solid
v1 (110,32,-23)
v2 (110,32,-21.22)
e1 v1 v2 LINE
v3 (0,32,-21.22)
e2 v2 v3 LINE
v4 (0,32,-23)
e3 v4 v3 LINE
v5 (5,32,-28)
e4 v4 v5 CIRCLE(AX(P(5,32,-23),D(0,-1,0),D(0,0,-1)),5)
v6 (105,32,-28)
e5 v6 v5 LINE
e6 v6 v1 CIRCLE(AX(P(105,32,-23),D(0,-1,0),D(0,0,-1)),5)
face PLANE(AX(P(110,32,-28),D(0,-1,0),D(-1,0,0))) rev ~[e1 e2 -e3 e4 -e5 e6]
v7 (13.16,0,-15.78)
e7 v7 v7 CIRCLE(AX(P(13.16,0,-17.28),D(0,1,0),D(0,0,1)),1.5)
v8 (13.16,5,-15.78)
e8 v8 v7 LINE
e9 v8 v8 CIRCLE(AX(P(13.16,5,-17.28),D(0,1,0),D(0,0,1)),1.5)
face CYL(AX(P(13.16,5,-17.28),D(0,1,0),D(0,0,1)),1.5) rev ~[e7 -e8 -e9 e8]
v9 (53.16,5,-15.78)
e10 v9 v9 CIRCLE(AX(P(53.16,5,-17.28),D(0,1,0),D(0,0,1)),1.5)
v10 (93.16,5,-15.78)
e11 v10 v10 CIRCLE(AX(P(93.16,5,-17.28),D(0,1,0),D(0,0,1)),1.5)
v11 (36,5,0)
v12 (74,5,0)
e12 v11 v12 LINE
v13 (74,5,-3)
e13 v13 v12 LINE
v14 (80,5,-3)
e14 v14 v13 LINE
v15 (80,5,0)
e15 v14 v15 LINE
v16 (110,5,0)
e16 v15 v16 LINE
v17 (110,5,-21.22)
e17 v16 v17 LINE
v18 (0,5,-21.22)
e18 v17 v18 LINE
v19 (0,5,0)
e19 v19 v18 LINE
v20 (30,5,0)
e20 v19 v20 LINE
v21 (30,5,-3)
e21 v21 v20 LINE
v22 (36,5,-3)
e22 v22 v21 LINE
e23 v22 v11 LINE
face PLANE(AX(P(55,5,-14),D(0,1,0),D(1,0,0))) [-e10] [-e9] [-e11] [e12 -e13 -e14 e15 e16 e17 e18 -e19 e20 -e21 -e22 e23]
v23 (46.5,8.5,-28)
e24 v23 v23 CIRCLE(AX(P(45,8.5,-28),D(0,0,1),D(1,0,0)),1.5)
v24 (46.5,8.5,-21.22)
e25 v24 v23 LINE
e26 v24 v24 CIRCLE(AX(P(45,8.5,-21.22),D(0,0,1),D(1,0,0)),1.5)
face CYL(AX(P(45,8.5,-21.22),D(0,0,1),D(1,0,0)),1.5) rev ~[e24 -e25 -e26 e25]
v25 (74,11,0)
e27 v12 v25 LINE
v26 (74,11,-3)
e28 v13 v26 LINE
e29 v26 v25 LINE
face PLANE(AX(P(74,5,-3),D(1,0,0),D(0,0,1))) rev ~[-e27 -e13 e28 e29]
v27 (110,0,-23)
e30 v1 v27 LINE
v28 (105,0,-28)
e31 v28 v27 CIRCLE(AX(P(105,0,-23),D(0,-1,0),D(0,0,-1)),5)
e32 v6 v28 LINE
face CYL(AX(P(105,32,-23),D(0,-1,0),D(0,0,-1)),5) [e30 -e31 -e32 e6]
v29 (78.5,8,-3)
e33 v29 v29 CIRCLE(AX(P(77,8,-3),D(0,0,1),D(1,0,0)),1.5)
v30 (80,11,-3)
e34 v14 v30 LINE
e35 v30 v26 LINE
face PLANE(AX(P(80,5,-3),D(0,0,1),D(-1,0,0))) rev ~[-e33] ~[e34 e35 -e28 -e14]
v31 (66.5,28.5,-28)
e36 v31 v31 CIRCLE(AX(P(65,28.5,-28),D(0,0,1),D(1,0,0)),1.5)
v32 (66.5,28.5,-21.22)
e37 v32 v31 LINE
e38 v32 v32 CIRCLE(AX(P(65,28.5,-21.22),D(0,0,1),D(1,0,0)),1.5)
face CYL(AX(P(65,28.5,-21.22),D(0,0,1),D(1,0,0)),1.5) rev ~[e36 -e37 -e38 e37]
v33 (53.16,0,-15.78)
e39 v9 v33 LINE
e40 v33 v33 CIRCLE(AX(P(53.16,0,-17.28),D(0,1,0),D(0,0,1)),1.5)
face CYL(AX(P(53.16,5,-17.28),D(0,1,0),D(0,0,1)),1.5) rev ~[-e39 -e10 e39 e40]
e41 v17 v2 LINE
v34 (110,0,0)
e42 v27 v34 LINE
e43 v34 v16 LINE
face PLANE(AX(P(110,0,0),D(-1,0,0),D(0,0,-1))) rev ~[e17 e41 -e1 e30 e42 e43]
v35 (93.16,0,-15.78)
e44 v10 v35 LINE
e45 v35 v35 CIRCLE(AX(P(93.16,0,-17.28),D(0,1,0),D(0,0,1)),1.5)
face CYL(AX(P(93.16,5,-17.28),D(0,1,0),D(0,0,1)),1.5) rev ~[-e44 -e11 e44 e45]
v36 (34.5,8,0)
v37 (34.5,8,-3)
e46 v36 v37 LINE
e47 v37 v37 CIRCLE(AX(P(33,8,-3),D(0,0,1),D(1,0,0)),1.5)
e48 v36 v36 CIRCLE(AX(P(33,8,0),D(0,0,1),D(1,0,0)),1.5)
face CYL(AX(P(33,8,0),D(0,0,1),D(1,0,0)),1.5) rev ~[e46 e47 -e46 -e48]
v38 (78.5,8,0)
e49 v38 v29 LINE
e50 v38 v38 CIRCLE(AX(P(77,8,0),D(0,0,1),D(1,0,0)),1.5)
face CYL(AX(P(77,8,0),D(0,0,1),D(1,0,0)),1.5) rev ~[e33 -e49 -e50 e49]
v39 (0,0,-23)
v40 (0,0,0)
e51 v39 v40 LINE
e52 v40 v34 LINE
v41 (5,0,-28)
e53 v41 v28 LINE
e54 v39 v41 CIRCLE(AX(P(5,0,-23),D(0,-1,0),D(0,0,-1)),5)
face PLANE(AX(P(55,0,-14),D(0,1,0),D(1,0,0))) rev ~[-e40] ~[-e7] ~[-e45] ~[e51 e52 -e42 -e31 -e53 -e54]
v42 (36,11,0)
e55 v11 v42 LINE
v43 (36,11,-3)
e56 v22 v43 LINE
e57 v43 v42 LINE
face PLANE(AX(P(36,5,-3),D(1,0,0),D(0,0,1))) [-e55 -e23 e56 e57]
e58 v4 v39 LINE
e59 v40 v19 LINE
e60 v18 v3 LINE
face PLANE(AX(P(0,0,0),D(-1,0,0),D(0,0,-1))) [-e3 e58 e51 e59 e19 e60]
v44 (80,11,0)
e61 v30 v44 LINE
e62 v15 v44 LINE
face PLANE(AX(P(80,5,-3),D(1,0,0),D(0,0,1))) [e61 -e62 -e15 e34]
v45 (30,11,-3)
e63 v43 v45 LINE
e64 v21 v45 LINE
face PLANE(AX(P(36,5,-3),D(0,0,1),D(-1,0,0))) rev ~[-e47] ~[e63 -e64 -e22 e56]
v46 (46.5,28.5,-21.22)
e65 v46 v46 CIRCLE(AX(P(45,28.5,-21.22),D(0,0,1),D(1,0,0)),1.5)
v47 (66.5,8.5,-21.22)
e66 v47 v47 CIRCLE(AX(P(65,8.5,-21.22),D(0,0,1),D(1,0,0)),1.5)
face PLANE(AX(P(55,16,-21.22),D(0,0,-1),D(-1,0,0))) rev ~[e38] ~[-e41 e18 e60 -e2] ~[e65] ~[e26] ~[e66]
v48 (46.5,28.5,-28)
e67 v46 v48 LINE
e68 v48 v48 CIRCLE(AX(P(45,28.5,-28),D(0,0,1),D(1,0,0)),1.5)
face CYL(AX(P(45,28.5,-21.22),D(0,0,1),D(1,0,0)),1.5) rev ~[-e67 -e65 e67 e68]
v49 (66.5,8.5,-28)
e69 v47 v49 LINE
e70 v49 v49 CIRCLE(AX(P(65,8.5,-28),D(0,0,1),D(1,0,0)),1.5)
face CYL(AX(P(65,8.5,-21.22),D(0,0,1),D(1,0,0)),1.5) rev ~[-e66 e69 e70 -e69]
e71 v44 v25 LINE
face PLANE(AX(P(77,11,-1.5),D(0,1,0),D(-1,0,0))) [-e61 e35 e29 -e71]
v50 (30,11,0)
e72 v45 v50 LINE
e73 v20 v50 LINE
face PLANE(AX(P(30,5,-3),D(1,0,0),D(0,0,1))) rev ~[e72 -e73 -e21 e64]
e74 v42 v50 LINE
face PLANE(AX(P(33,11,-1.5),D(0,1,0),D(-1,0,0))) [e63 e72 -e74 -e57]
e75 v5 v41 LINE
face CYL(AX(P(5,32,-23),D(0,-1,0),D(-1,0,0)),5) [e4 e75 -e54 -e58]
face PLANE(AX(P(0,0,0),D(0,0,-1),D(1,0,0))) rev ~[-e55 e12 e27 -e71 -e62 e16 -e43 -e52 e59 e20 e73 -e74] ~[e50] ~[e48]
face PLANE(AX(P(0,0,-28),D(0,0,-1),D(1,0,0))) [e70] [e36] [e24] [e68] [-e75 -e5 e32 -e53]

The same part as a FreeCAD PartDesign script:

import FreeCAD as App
import Part
import Sketcher
from FreeCAD import Vector
Q = App.Units.Quantity


def edges_at(feature, points):
    """Names of the edges that pass closest to the given points."""
    edges = feature.Shape.Edges
    near = lambda p: min(range(len(edges)), key=lambda i: edges[i].distToShape(Part.Vertex(*p))[0])
    return sorted({f"Edge{near(p) + 1}" for p in points})


def add_polygon(sketch, points):
    """Adds a closed chain of lines whose ends are joined by coincident constraints."""
    first, n = sketch.GeometryCount, len(points)
    for a, b in zip(points, points[1:] + points[:1]):
        sketch.addGeometry(Part.LineSegment(App.Vector(*a, 0), App.Vector(*b, 0)), False)
    for i in range(n):
        sketch.addConstraint(Sketcher.Constraint("Coincident", first + i, 2, first + (i + 1) % n, 1))

doc = App.newDocument("Part")
body = doc.addObject("PartDesign::Body", "Body")

sketch1 = doc.addObject("Sketcher::SketchObject", "Sketch")
body.addObject(sketch1)
sketch1.AttachmentSupport = (doc.XZ_Plane, [""])
sketch1.MapMode = "FlatFace"
add_polygon(sketch1, [(0, -28), (0, 0), (110, 0), (110, -28)])
sketch1.addConstraint([
    Sketcher.Constraint("Vertical", 0),
    Sketcher.Constraint("Horizontal", 1),
    Sketcher.Constraint("Vertical", 2),
    Sketcher.Constraint("Horizontal", 3),
    Sketcher.Constraint("Coincident", 0, 2, -1, 1),
    Sketcher.Constraint("DistanceX", 1, 1, 1, 2, Q("110 mm")),
    Sketcher.Constraint("DistanceY", 0, 1, 0, 2, Q("28 mm")),
])
pad1 = doc.addObject("PartDesign::Pad", "Pad")
body.addObject(pad1)
pad1.Profile = sketch1
pad1.Length = 5
pad1.Reversed = True

sketch2 = doc.addObject("Sketcher::SketchObject", "Sketch001")
body.addObject(sketch2)
sketch2.AttachmentSupport = (doc.XY_Plane, [""])
sketch2.MapMode = "FlatFace"
sketch2.AttachmentOffset = App.Placement(Vector(0, 0, -28), App.Rotation())
add_polygon(sketch2, [(110, 32), (110, 0), (0, 0), (0, 32)])
sketch2.addConstraint([
    Sketcher.Constraint("Vertical", 0),
    Sketcher.Constraint("Horizontal", 1),
    Sketcher.Constraint("Vertical", 2),
    Sketcher.Constraint("Horizontal", 3),
    Sketcher.Constraint("Coincident", 1, 2, -1, 1),
    Sketcher.Constraint("DistanceX", 1, 2, 1, 1, Q("110 mm")),
    Sketcher.Constraint("DistanceY", 0, 2, 0, 1, Q("32 mm")),
])
pad2 = doc.addObject("PartDesign::Pad", "Pad001")
body.addObject(pad2)
pad2.Profile = sketch2
pad2.Length = 6.78

sketch3 = doc.addObject("Sketcher::SketchObject", "Sketch002")
body.addObject(sketch3)
sketch3.AttachmentSupport = (doc.XZ_Plane, [""])
sketch3.MapMode = "FlatFace"
sketch3.AttachmentOffset = App.Placement(Vector(0, 0, -5), App.Rotation())
sketch3.addGeometry([
    Part.Circle(Vector(13.2, -17.3, 0), Vector(0, 0, 1), 1.5),
    Part.Circle(Vector(53.2, -17.3, 0), Vector(0, 0, 1), 1.5),
    Part.Circle(Vector(93.2, -17.3, 0), Vector(0, 0, 1), 1.5),
], False)
sketch3.addConstraint([
    Sketcher.Constraint("Equal", 0, 1),
    Sketcher.Constraint("Equal", 1, 2),
    Sketcher.Constraint("Horizontal", 0, 3, 1, 3),
    Sketcher.Constraint("Horizontal", 1, 3, 2, 3),
    Sketcher.Constraint("Diameter", 0, Q("3 mm")),
    Sketcher.Constraint("DistanceX", 0, 3, 1, 3, Q("40 mm")),
    Sketcher.Constraint("DistanceX", 1, 3, 2, 3, Q("40 mm")),
    Sketcher.Constraint("DistanceX", -1, 1, 0, 3, Q("13.16 mm")),
    Sketcher.Constraint("DistanceY", 0, 3, -1, 1, Q("17.28 mm")),
])
pocket1 = doc.addObject("PartDesign::Pocket", "Pocket")
body.addObject(pocket1)
pocket1.Profile = sketch3
pocket1.Type = "ThroughAll"
pocket1.Reversed = True

sketch4 = doc.addObject("Sketcher::SketchObject", "Sketch003")
body.addObject(sketch4)
sketch4.AttachmentSupport = (doc.XY_Plane, [""])
sketch4.MapMode = "FlatFace"
sketch4.AttachmentOffset = App.Placement(Vector(0, 0, -21.22), App.Rotation())
sketch4.addGeometry([
    Part.Circle(Vector(45, 8.5, 0), Vector(0, 0, 1), 1.5),
    Part.Circle(Vector(65, 8.5, 0), Vector(0, 0, 1), 1.5),
    Part.Circle(Vector(45, 28.5, 0), Vector(0, 0, 1), 1.5),
    Part.Circle(Vector(65, 28.5, 0), Vector(0, 0, 1), 1.5),
], False)
sketch4.addConstraint([
    Sketcher.Constraint("Equal", 0, 1),
    Sketcher.Constraint("Equal", 1, 2),
    Sketcher.Constraint("Equal", 2, 3),
    Sketcher.Constraint("Horizontal", 0, 3, 1, 3),
    Sketcher.Constraint("Horizontal", 2, 3, 3, 3),
    Sketcher.Constraint("Vertical", 0, 3, 2, 3),
    Sketcher.Constraint("Vertical", 1, 3, 3, 3),
    Sketcher.Constraint("Diameter", 0, Q("3 mm")),
    Sketcher.Constraint("DistanceX", -1, 1, 0, 3, Q("45 mm")),
    Sketcher.Constraint("DistanceX", -1, 1, 1, 3, Q("65 mm")),
    Sketcher.Constraint("DistanceY", 0, 3, 2, 3, Q("20 mm")),
    Sketcher.Constraint("DistanceY", -1, 1, 0, 3, Q("8.5 mm")),
])
pocket2 = doc.addObject("PartDesign::Pocket", "Pocket001")
body.addObject(pocket2)
pocket2.Profile = sketch4
pocket2.Type = "ThroughAll"
doc.recompute()

fillet = doc.addObject("PartDesign::Fillet", "Fillet")
body.addObject(fillet)
fillet.Base = (pocket2, edges_at(pocket2, [(0, 16, -28), (110, 16, -28)]))
fillet.Radius = 5

sketch5 = doc.addObject("Sketcher::SketchObject", "Sketch004")
body.addObject(sketch5)
sketch5.AttachmentSupport = (doc.XZ_Plane, [""])
sketch5.MapMode = "FlatFace"
sketch5.AttachmentOffset = App.Placement(Vector(0, 0, -5), App.Rotation())
add_polygon(sketch5, [(36, 0), (36, -3), (30, -3), (30, 0)])
add_polygon(sketch5, [(80, 0), (80, -3), (74, -3), (74, 0)])
sketch5.addConstraint([
    Sketcher.Constraint("Vertical", 0),
    Sketcher.Constraint("Horizontal", 1),
    Sketcher.Constraint("Vertical", 2),
    Sketcher.Constraint("Horizontal", 3),
    Sketcher.Constraint("Vertical", 4),
    Sketcher.Constraint("Horizontal", 5),
    Sketcher.Constraint("Vertical", 6),
    Sketcher.Constraint("Horizontal", 7),
    Sketcher.Constraint("PointOnObject", 2, 2, -1),
    Sketcher.Constraint("PointOnObject", 6, 2, -1),
    Sketcher.Constraint("Horizontal", 1, 2, 4, 2),
    Sketcher.Constraint("Equal", 3, 5),
    Sketcher.Constraint("DistanceX", 1, 2, 1, 1, Q("6 mm")),
    Sketcher.Constraint("DistanceY", 0, 2, 0, 1, Q("3 mm")),
    Sketcher.Constraint("DistanceX", -1, 1, 0, 2, Q("36 mm")),
    Sketcher.Constraint("DistanceX", -1, 1, 4, 2, Q("80 mm")),
])
pad3 = doc.addObject("PartDesign::Pad", "Pad002")
body.addObject(pad3)
pad3.Profile = sketch5
pad3.Length = 6
pad3.Reversed = True

sketch6 = doc.addObject("Sketcher::SketchObject", "Sketch005")
body.addObject(sketch6)
sketch6.AttachmentSupport = (doc.XY_Plane, [""])
sketch6.MapMode = "FlatFace"
sketch6.addGeometry([
    Part.Circle(Vector(33, 8, 0), Vector(0, 0, 1), 1.5),
    Part.Circle(Vector(77, 8, 0), Vector(0, 0, 1), 1.5),
], False)
sketch6.addConstraint([
    Sketcher.Constraint("Equal", 0, 1),
    Sketcher.Constraint("Horizontal", 0, 3, 1, 3),
    Sketcher.Constraint("Diameter", 0, Q("3 mm")),
    Sketcher.Constraint("DistanceX", -1, 1, 0, 3, Q("33 mm")),
    Sketcher.Constraint("DistanceY", -1, 1, 0, 3, Q("8 mm")),
    Sketcher.Constraint("DistanceX", -1, 1, 1, 3, Q("77 mm")),
])
pocket3 = doc.addObject("PartDesign::Pocket", "Pocket002")
body.addObject(pocket3)
pocket3.Profile = sketch6
pocket3.Length = 6

doc.recompute()
